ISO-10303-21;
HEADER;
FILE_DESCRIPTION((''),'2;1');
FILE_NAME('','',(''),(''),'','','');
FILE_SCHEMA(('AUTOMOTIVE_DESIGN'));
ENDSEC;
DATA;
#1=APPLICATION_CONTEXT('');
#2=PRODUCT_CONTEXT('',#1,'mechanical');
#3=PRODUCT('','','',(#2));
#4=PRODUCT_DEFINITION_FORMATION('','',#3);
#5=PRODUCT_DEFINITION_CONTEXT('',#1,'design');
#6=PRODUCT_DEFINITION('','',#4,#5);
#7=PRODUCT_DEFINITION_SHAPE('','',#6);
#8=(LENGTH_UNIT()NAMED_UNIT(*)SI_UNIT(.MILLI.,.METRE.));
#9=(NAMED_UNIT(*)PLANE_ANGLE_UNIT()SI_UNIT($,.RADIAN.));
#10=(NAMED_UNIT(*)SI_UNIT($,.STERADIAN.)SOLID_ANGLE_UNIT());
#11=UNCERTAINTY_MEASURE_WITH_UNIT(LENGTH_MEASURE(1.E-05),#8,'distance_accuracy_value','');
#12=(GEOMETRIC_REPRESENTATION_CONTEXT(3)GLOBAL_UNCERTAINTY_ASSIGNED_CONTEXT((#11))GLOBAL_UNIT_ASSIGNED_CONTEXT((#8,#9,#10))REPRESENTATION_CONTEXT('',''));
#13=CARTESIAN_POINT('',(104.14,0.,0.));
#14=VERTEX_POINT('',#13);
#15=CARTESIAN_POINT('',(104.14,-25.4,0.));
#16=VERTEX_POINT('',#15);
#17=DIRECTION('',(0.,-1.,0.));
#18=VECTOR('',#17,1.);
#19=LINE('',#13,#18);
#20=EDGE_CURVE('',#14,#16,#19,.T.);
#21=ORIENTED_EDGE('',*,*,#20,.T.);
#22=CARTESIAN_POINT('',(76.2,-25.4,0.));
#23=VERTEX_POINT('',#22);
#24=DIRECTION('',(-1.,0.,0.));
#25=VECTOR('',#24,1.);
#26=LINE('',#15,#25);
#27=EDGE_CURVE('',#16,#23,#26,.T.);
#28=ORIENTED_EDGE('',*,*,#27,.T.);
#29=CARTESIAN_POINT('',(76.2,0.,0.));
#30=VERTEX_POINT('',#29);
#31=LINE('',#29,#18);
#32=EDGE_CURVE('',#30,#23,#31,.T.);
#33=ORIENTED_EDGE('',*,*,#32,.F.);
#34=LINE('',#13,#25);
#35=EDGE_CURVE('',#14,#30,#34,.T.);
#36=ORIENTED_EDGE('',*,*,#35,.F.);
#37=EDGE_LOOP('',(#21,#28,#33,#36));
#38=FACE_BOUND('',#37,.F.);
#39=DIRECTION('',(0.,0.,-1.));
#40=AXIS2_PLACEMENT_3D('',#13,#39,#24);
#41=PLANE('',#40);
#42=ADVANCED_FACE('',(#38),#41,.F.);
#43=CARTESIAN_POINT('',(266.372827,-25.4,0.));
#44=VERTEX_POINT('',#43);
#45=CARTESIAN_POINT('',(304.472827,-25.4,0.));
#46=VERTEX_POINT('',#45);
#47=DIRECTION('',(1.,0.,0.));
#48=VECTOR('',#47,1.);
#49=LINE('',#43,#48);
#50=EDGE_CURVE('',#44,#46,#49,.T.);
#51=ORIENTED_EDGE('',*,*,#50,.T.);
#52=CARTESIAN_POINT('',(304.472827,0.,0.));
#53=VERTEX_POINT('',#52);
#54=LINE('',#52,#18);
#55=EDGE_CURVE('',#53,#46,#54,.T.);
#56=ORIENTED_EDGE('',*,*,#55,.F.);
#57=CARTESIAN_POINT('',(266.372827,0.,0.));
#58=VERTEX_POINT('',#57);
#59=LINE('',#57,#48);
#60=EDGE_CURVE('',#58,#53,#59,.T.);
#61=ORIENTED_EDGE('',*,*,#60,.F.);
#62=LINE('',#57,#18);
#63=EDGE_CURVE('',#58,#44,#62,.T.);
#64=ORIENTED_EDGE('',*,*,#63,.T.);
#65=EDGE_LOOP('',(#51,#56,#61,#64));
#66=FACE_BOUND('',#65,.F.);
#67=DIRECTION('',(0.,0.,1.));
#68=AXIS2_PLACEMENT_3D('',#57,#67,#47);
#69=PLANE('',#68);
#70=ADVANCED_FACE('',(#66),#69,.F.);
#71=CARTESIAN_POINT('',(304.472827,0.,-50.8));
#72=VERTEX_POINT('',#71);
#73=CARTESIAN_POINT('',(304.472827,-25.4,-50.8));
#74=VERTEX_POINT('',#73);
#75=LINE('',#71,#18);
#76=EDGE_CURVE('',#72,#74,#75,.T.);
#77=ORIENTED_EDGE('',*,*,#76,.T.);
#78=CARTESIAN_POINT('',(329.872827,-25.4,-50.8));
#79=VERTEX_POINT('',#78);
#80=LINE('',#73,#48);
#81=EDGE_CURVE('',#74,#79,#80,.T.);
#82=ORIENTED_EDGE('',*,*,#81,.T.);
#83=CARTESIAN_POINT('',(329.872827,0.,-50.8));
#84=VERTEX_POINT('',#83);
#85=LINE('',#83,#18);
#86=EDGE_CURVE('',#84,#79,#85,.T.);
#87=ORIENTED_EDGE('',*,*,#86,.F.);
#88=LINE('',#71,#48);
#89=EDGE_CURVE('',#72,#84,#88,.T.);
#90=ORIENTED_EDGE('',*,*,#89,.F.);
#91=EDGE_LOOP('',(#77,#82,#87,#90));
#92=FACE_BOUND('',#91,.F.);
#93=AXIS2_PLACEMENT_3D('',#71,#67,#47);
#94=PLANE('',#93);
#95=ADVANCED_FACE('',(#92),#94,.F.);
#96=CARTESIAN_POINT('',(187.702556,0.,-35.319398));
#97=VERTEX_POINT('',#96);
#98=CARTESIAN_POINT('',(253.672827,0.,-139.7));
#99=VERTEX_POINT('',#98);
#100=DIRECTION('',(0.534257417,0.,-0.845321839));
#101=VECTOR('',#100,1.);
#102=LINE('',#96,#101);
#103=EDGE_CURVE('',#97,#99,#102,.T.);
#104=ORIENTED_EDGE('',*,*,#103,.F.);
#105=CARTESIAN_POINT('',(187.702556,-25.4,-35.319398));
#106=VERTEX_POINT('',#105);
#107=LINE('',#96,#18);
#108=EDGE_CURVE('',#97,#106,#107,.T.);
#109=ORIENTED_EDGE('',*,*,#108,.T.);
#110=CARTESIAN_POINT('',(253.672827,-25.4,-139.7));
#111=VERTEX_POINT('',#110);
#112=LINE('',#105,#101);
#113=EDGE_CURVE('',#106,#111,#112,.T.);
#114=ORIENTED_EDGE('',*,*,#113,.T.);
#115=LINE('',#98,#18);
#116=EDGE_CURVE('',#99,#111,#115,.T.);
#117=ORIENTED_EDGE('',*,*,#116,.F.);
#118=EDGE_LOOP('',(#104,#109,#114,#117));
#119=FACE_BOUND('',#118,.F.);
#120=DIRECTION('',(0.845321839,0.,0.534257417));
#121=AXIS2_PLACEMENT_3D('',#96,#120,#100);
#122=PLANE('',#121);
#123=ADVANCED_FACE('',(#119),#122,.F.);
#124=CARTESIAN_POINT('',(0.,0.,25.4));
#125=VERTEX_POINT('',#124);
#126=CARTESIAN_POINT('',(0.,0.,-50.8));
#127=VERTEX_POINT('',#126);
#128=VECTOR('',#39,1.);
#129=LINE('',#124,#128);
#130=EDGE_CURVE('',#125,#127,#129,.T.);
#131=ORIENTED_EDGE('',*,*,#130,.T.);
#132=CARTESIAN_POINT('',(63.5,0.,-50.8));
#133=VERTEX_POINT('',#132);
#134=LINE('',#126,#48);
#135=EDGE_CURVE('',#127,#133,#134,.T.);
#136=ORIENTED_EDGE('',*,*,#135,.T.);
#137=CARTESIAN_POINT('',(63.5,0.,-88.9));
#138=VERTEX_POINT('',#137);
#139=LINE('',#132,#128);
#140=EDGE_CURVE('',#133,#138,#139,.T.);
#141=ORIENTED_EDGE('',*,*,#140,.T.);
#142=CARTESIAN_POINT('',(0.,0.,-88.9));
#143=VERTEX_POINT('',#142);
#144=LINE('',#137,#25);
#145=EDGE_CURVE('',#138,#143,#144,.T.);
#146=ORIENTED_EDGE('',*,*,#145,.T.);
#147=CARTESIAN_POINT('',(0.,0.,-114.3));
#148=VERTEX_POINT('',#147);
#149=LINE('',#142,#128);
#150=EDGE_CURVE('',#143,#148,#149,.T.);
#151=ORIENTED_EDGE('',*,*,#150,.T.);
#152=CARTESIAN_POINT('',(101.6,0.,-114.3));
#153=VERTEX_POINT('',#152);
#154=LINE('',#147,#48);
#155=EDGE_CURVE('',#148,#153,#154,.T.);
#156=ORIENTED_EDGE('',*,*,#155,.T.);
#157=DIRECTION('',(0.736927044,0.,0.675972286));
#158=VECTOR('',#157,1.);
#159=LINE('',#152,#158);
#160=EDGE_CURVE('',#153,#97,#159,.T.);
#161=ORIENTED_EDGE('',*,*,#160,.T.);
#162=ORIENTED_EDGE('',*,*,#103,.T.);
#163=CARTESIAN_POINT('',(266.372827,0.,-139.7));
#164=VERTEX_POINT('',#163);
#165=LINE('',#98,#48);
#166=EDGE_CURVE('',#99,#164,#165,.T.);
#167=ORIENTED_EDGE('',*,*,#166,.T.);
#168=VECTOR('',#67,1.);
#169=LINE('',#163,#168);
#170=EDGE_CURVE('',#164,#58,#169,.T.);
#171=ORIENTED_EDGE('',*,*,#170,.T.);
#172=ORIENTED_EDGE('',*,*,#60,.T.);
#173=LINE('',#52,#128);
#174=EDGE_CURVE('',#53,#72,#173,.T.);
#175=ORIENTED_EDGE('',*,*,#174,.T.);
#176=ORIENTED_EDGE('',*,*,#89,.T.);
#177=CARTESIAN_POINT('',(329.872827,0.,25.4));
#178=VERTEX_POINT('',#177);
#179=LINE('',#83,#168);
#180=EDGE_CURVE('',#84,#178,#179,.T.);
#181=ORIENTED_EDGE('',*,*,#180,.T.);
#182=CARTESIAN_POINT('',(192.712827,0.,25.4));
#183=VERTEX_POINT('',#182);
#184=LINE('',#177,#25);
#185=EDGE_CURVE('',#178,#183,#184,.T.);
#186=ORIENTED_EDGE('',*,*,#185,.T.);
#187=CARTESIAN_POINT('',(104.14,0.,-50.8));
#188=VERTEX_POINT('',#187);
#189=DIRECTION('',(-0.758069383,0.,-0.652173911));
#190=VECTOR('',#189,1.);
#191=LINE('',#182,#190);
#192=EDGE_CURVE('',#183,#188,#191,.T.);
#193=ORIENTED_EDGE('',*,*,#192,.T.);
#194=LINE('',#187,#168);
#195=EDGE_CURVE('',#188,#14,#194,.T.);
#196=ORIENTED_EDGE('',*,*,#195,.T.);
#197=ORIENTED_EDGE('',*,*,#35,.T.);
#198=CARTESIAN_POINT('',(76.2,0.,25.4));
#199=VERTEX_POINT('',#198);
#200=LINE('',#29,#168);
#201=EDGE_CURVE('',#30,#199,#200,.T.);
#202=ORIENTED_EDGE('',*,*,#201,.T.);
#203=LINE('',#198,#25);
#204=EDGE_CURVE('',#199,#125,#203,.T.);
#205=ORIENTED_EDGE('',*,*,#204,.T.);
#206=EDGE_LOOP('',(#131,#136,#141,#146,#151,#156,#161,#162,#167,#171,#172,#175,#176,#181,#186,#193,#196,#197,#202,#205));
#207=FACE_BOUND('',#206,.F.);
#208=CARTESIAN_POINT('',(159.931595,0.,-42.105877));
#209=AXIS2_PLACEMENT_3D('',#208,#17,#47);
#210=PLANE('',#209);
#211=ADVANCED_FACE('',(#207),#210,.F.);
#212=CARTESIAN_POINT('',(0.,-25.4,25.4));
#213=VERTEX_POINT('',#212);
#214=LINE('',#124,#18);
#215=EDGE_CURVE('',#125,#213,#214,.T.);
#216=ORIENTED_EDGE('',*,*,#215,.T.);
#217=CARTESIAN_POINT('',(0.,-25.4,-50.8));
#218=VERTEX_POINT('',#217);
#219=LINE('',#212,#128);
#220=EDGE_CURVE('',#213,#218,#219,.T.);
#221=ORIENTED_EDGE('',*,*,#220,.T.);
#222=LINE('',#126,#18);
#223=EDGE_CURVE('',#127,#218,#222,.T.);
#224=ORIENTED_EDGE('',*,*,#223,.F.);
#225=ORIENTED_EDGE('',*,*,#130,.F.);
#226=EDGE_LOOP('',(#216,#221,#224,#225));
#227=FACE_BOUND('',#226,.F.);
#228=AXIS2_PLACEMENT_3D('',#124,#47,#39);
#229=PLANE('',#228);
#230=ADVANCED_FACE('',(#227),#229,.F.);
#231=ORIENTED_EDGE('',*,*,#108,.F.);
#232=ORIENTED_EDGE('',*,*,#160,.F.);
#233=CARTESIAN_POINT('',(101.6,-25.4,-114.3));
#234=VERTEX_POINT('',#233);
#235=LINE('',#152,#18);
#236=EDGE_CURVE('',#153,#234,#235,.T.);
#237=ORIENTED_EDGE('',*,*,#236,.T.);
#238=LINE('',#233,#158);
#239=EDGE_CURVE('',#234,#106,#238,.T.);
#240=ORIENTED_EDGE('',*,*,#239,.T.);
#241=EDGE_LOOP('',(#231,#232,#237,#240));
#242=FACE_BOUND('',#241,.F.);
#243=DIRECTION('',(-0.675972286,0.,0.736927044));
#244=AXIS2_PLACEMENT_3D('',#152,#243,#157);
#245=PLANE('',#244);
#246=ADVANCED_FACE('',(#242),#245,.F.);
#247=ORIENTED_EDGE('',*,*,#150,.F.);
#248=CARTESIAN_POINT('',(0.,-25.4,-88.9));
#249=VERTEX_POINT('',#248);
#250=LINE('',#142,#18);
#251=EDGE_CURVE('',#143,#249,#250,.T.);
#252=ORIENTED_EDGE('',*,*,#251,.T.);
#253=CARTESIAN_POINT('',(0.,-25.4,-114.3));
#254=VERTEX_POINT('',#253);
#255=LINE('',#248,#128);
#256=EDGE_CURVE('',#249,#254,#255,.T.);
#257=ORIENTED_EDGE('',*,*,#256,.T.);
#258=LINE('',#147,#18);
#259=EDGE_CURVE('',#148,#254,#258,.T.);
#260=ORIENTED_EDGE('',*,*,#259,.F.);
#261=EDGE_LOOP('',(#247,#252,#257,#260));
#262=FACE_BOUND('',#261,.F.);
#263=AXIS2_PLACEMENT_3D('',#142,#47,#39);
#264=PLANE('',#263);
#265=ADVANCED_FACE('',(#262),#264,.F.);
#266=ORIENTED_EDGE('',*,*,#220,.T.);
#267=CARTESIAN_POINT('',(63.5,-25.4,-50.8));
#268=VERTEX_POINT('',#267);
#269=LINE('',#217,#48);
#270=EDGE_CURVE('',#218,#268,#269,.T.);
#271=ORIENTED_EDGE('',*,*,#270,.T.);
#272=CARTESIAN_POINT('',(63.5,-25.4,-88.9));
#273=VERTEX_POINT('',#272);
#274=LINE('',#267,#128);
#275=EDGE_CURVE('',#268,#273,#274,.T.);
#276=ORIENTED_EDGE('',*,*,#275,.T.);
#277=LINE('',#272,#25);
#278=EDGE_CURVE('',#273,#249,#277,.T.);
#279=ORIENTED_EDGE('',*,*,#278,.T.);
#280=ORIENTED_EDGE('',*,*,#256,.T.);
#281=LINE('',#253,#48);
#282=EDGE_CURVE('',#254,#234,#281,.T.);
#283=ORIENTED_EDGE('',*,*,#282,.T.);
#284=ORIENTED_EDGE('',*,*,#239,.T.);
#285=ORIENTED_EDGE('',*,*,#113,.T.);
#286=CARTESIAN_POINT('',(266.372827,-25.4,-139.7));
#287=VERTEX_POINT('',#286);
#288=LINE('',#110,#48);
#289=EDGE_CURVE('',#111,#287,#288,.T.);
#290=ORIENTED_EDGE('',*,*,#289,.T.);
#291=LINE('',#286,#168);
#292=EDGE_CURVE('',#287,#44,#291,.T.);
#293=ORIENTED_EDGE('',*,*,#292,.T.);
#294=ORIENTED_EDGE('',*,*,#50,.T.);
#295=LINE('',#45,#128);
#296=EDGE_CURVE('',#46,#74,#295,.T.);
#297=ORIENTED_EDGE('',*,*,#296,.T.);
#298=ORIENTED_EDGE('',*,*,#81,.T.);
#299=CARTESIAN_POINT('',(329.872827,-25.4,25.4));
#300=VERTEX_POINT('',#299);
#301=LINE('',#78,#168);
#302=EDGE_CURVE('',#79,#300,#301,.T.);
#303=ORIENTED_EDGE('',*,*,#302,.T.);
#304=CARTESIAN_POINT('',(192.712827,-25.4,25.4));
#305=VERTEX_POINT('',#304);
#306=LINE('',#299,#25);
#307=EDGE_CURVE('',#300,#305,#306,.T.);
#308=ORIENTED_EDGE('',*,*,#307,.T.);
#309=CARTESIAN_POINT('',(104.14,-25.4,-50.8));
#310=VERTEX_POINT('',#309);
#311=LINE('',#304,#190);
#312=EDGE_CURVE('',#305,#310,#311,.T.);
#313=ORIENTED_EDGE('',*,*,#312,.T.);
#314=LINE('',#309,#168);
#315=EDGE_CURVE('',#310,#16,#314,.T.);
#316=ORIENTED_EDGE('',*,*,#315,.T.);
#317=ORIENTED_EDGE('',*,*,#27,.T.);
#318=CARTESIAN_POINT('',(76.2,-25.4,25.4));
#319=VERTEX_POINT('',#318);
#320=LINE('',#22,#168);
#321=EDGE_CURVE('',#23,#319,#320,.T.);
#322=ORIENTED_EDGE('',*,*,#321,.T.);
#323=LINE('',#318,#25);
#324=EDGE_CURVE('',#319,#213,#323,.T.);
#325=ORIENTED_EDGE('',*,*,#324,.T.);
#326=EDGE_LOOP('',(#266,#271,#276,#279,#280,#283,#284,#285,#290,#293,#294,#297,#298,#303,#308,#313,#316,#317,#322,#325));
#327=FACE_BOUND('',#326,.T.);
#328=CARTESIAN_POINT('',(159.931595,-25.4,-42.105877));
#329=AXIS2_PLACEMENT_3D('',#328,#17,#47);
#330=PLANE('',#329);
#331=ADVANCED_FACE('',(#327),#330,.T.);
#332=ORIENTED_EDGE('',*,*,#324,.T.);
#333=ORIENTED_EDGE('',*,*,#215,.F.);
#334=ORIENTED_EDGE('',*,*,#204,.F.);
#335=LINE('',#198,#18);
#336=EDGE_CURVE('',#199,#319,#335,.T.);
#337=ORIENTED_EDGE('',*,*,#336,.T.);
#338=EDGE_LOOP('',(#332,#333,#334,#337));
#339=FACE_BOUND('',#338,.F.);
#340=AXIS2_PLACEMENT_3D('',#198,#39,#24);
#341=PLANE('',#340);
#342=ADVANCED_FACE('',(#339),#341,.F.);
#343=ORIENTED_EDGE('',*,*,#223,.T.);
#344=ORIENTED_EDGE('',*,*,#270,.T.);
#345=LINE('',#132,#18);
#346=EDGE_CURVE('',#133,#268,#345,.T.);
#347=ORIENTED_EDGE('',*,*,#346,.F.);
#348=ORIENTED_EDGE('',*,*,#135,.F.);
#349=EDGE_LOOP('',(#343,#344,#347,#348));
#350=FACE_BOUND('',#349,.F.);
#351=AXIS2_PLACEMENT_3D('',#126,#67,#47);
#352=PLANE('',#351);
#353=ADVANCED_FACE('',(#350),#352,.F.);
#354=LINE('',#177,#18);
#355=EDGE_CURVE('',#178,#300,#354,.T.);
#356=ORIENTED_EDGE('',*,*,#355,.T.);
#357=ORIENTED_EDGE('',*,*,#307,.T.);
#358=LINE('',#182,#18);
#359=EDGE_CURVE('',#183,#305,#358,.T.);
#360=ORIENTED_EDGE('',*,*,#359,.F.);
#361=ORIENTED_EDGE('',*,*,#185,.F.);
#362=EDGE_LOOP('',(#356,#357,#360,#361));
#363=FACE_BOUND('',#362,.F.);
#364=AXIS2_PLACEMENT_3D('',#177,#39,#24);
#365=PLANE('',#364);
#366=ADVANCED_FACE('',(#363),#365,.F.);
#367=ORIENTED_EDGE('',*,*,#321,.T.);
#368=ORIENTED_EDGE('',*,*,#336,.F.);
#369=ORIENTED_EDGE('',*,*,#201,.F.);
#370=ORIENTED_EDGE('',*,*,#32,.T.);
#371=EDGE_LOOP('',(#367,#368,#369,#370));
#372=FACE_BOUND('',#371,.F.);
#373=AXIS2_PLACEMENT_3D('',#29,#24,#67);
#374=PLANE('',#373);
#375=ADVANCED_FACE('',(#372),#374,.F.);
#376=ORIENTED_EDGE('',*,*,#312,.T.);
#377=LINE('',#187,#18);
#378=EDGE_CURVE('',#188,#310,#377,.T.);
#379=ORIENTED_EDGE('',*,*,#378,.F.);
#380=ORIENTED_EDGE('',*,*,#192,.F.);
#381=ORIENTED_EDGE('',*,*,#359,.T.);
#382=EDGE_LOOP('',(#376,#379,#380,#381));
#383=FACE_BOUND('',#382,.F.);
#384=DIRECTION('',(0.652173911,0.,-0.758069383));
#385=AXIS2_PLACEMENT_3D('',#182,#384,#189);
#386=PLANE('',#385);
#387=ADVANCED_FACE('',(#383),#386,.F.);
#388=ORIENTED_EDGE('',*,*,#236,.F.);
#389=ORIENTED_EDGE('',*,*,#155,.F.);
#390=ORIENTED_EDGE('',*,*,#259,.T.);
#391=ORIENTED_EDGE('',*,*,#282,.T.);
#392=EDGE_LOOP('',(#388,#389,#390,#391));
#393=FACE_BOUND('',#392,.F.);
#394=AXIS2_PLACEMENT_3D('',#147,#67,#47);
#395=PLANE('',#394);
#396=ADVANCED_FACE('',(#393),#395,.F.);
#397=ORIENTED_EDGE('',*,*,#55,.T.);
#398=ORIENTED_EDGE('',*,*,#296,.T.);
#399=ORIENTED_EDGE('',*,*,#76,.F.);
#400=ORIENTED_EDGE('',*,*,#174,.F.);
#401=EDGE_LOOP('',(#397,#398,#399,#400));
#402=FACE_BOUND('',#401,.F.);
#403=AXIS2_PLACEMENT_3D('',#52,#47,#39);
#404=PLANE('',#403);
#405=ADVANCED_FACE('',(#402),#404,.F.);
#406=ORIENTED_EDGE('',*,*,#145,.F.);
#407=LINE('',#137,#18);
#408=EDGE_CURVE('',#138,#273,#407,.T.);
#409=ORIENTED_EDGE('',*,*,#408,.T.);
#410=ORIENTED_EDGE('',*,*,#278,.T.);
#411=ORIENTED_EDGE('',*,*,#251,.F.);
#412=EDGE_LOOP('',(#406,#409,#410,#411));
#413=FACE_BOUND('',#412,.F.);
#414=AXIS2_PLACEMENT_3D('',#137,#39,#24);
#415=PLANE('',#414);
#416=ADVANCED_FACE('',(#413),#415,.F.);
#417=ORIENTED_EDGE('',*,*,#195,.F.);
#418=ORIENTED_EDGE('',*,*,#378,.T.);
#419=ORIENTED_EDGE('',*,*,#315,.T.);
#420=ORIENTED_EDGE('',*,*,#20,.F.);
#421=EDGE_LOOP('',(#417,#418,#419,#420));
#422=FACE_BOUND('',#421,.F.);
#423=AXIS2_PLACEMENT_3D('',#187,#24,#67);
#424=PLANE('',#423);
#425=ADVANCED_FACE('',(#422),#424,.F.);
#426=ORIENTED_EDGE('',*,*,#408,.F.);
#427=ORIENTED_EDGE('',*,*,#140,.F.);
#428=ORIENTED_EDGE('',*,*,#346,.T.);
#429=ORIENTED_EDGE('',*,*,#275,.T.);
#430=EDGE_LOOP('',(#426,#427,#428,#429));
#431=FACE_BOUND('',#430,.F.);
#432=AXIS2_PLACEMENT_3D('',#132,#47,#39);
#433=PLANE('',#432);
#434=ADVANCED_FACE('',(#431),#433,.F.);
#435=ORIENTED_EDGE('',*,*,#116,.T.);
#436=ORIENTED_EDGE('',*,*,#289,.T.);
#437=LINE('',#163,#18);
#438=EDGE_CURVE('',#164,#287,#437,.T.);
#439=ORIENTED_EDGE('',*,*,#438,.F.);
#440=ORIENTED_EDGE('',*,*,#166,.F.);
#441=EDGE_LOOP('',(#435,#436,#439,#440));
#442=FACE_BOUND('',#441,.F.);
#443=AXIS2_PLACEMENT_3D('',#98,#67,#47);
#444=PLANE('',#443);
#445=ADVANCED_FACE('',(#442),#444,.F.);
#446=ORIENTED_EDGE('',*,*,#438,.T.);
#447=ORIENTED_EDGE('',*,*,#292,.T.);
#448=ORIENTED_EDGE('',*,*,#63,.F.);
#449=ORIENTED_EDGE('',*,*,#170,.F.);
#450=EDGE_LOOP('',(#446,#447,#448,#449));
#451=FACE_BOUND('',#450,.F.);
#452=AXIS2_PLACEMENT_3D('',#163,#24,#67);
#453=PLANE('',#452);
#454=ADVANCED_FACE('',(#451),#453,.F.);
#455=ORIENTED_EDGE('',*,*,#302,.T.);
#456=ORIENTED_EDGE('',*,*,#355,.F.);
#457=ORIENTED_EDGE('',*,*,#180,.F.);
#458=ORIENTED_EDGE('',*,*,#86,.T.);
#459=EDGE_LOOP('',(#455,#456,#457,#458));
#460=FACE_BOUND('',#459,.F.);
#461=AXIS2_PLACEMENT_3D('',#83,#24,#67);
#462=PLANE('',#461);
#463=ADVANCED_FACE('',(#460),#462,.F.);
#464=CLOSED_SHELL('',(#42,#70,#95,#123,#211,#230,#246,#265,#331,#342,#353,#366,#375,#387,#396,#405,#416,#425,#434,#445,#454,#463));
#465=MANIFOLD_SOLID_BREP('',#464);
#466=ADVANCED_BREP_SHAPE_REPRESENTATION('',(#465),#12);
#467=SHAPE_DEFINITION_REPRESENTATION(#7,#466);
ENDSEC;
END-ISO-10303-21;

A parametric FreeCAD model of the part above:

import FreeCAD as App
import Part
import Sketcher
Q = App.Units.Quantity


def add_polygon(sketch, points):
    """Adds a closed chain of lines whose ends are joined by coincident constraints."""
    first, n = sketch.GeometryCount, len(points)
    for a, b in zip(points, points[1:] + points[:1]):
        sketch.addGeometry(Part.LineSegment(App.Vector(*a, 0), App.Vector(*b, 0)), False)
    for i in range(n):
        sketch.addConstraint(Sketcher.Constraint("Coincident", first + i, 2, first + (i + 1) % n, 1))

doc = App.newDocument("Part")
body = doc.addObject("PartDesign::Body", "Body")

sketch1 = doc.addObject("Sketcher::SketchObject", "Sketch")
body.addObject(sketch1)
sketch1.AttachmentSupport = (doc.XZ_Plane, [""])
sketch1.MapMode = "FlatFace"
add_polygon(sketch1, [(0, 25), (0, -51), (64, -51), (64, -89), (0, -89), (0, -114), (102, -114), (188, -35), (254, -140), (266, -140), (266, 0), (304, 0), (304, -51), (330, -51), (330, 25), (193, 25), (104, -51), (104, 0), (76, 0), (76, 25)])
sketch1.addConstraint([
    Sketcher.Constraint("Vertical", 0),
    Sketcher.Constraint("Horizontal", 1),
    Sketcher.Constraint("Vertical", 2),
    Sketcher.Constraint("Horizontal", 3),
    Sketcher.Constraint("Vertical", 4),
    Sketcher.Constraint("Horizontal", 5),
    Sketcher.Constraint("Horizontal", 8),
    Sketcher.Constraint("Vertical", 9),
    Sketcher.Constraint("Horizontal", 10),
    Sketcher.Constraint("Vertical", 11),
    Sketcher.Constraint("Horizontal", 12),
    Sketcher.Constraint("Vertical", 13),
    Sketcher.Constraint("Horizontal", 14),
    Sketcher.Constraint("Vertical", 16),
    Sketcher.Constraint("Horizontal", 17),
    Sketcher.Constraint("Vertical", 18),
    Sketcher.Constraint("Horizontal", 19),
    Sketcher.Constraint("PointOnObject", 0, 2, -2),
    Sketcher.Constraint("PointOnObject", 3, 2, -2),
    Sketcher.Constraint("PointOnObject", 9, 2, -1),
    Sketcher.Constraint("PointOnObject", 16, 2, -1),
    Sketcher.Constraint("Horizontal", 1, 2, 11, 2),
    Sketcher.Constraint("Horizontal", 12, 2, 15, 2),
    Sketcher.Constraint("Horizontal", 14, 2, 18, 2),
    Sketcher.Constraint("Equal", 19, 0),
    Sketcher.Constraint("Equal", 10, 2),
    Sketcher.Constraint("Equal", 12, 4),
    Sketcher.Constraint("Equal", 4, 18),
    Sketcher.Constraint("Equal", 6, 15),
    Sketcher.Constraint("DistanceX", 5, 1, 5, 2, Q("4 in")),
    Sketcher.Constraint("DistanceX", 12, 1, 12, 2, Q("1 in")),
    Sketcher.Constraint("DistanceX", 19, 2, 19, 1, Q("3 in")),
    Sketcher.Constraint("DistanceX", 1, 1, 1, 2, Q("2.5 in")),
    Sketcher.Constraint("DistanceX", 8, 1, 8, 2, Q("0.5 in")),
    Sketcher.Constraint("DistanceX", 10, 1, 10, 2, Q("1.5 in")),
    Sketcher.Constraint("DistanceX", 14, 2, 14, 1, Q("5.4 in")),
    Sketcher.Constraint("DistanceX", 17, 2, 17, 1, Q("1.1 in")),
    Sketcher.Constraint("DistanceY", 9, 1, 9, 2, Q("5.5 in")),
    Sketcher.Constraint("Distance", 6, Q("4.6 in")),
    Sketcher.Constraint("DistanceY", 1, 2, 6, 2, Q("15.480602 mm")),
])
pad1 = doc.addObject("PartDesign::Pad", "Pad")
body.addObject(pad1)
pad1.Profile = sketch1
pad1.Length = Q("1 in")

doc.recompute()
